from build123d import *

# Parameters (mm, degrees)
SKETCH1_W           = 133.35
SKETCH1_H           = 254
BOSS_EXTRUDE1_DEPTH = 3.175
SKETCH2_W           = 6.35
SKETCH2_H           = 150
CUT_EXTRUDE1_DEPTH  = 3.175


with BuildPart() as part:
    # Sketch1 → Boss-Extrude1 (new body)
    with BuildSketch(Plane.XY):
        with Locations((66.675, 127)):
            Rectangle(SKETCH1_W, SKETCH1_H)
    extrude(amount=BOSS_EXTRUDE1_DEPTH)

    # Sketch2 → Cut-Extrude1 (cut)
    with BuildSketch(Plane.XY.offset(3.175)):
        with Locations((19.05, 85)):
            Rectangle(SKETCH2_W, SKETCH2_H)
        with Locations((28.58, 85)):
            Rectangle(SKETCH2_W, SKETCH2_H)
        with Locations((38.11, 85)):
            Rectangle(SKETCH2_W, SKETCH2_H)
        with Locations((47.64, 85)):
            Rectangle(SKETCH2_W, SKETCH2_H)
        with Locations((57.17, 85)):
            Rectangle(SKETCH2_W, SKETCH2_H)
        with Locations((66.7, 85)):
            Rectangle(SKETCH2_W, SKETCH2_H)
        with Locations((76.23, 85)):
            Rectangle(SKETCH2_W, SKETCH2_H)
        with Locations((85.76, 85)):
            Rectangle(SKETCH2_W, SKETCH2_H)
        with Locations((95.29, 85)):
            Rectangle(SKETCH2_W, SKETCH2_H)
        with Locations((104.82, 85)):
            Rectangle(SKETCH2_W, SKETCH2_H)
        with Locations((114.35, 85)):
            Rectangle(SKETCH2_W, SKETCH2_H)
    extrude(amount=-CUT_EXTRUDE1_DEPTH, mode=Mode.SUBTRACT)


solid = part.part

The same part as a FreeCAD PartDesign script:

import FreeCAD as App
import Part
import Sketcher
Q = App.Units.Quantity


def add_polygon(sketch, points):
    """Adds a closed chain of lines whose ends are joined by coincident constraints."""
    first, n = sketch.GeometryCount, len(points)
    for a, b in zip(points, points[1:] + points[:1]):
        sketch.addGeometry(Part.LineSegment(App.Vector(*a, 0), App.Vector(*b, 0)), False)
    for i in range(n):
        sketch.addConstraint(Sketcher.Constraint("Coincident", first + i, 2, first + (i + 1) % n, 1))

doc = App.newDocument("Part")
body = doc.addObject("PartDesign::Body", "Body")

# Sketch on XY plane
sketch1 = body.newObject("Sketcher::SketchObject", "Sketch")
sketch1.AttachmentSupport = (doc.getObject("XY_Plane"), [""])
sketch1.MapMode = "FlatFace"
add_polygon(sketch1, [(0, 254), (0, 0), (133.35, 0), (133.35, 254)])  # lines 0-3
sketch1.addConstraint(Sketcher.Constraint("Vertical", 0))
sketch1.addConstraint(Sketcher.Constraint("Horizontal", 1))
sketch1.addConstraint(Sketcher.Constraint("Vertical", 2))
sketch1.addConstraint(Sketcher.Constraint("Horizontal", 3))
sketch1.addConstraint(Sketcher.Constraint("Coincident", 0, 2, -1, 1))
sketch1.addConstraint(Sketcher.Constraint("DistanceY", 0, 2, 0, 1, Q("10 in")))
sketch1.addConstraint(Sketcher.Constraint("DistanceX", 1, 1, 1, 2, Q("5.25 in")))
pad1 = body.newObject("PartDesign::Pad", "Pad")
pad1.Profile = sketch1
pad1.Length = Q("0.125 in")

# Sketch on XY plane
sketch2 = body.newObject("Sketcher::SketchObject", "Sketch001")
sketch2.AttachmentSupport = (doc.getObject("XY_Plane"), [""])
sketch2.MapMode = "FlatFace"
sketch2.AttachmentOffset = App.Placement(App.Vector(0, 0, 0.125 * 25.4), App.Rotation())
add_polygon(sketch2, [(15.875, 160), (15.875, 10), (22.225, 10), (22.225, 160)])  # lines 0-3
add_polygon(sketch2, [(25.405, 160), (25.405, 10), (31.755, 10), (31.755, 160)])  # lines 4-7
add_polygon(sketch2, [(34.935, 160), (34.935, 10), (41.285, 10), (41.285, 160)])  # lines 8-11
add_polygon(sketch2, [(44.465, 160), (44.465, 10), (50.815, 10), (50.815, 160)])  # lines 12-15
add_polygon(sketch2, [(53.995, 160), (53.995, 10), (60.345, 10), (60.345, 160)])  # lines 16-19
add_polygon(sketch2, [(63.525, 160), (63.525, 10), (69.875, 10), (69.875, 160)])  # lines 20-23
add_polygon(sketch2, [(73.055, 160), (73.055, 10), (79.405, 10), (79.405, 160)])  # lines 24-27
add_polygon(sketch2, [(82.585, 160), (82.585, 10), (88.935, 10), (88.935, 160)])  # lines 28-31
add_polygon(sketch2, [(92.115, 160), (92.115, 10), (98.465, 10), (98.465, 160)])  # lines 32-35
add_polygon(sketch2, [(101.645, 160), (101.645, 10), (107.995, 10), (107.995, 160)])  # lines 36-39
add_polygon(sketch2, [(111.175, 160), (111.175, 10), (117.525, 10), (117.525, 160)])  # lines 40-43
sketch2.addConstraint(Sketcher.Constraint("Vertical", 0))
sketch2.addConstraint(Sketcher.Constraint("Horizontal", 1))
sketch2.addConstraint(Sketcher.Constraint("Vertical", 2))
sketch2.addConstraint(Sketcher.Constraint("Horizontal", 3))
sketch2.addConstraint(Sketcher.Constraint("Vertical", 4))
sketch2.addConstraint(Sketcher.Constraint("Horizontal", 5))
sketch2.addConstraint(Sketcher.Constraint("Vertical", 6))
sketch2.addConstraint(Sketcher.Constraint("Horizontal", 7))
sketch2.addConstraint(Sketcher.Constraint("Vertical", 8))
sketch2.addConstraint(Sketcher.Constraint("Horizontal", 9))
sketch2.addConstraint(Sketcher.Constraint("Vertical", 10))
sketch2.addConstraint(Sketcher.Constraint("Horizontal", 11))
sketch2.addConstraint(Sketcher.Constraint("Vertical", 12))
sketch2.addConstraint(Sketcher.Constraint("Horizontal", 13))
sketch2.addConstraint(Sketcher.Constraint("Vertical", 14))
sketch2.addConstraint(Sketcher.Constraint("Horizontal", 15))
sketch2.addConstraint(Sketcher.Constraint("Vertical", 16))
sketch2.addConstraint(Sketcher.Constraint("Horizontal", 17))
sketch2.addConstraint(Sketcher.Constraint("Vertical", 18))
sketch2.addConstraint(Sketcher.Constraint("Horizontal", 19))
sketch2.addConstraint(Sketcher.Constraint("Vertical", 20))
sketch2.addConstraint(Sketcher.Constraint("Horizontal", 21))
sketch2.addConstraint(Sketcher.Constraint("Vertical", 22))
sketch2.addConstraint(Sketcher.Constraint("Horizontal", 23))
sketch2.addConstraint(Sketcher.Constraint("Vertical", 24))
sketch2.addConstraint(Sketcher.Constraint("Horizontal", 25))
sketch2.addConstraint(Sketcher.Constraint("Vertical", 26))
sketch2.addConstraint(Sketcher.Constraint("Horizontal", 27))
sketch2.addConstraint(Sketcher.Constraint("Vertical", 28))
sketch2.addConstraint(Sketcher.Constraint("Horizontal", 29))
sketch2.addConstraint(Sketcher.Constraint("Vertical", 30))
sketch2.addConstraint(Sketcher.Constraint("Horizontal", 31))
sketch2.addConstraint(Sketcher.Constraint("Vertical", 32))
sketch2.addConstraint(Sketcher.Constraint("Horizontal", 33))
sketch2.addConstraint(Sketcher.Constraint("Vertical", 34))
sketch2.addConstraint(Sketcher.Constraint("Horizontal", 35))
sketch2.addConstraint(Sketcher.Constraint("Vertical", 36))
sketch2.addConstraint(Sketcher.Constraint("Horizontal", 37))
sketch2.addConstraint(Sketcher.Constraint("Vertical", 38))
sketch2.addConstraint(Sketcher.Constraint("Horizontal", 39))
sketch2.addConstraint(Sketcher.Constraint("Vertical", 40))
sketch2.addConstraint(Sketcher.Constraint("Horizontal", 41))
sketch2.addConstraint(Sketcher.Constraint("Vertical", 42))
sketch2.addConstraint(Sketcher.Constraint("Horizontal", 43))
sketch2.addConstraint(Sketcher.Constraint("Horizontal", 1, 2, 4, 2))
sketch2.addConstraint(Sketcher.Constraint("Horizontal", 3, 2, 6, 2))
sketch2.addConstraint(Sketcher.Constraint("Horizontal", 5, 2, 8, 2))
sketch2.addConstraint(Sketcher.Constraint("Horizontal", 7, 2, 10, 2))
sketch2.addConstraint(Sketcher.Constraint("Horizontal", 9, 2, 12, 2))
sketch2.addConstraint(Sketcher.Constraint("Horizontal", 11, 2, 14, 2))
sketch2.addConstraint(Sketcher.Constraint("Horizontal", 13, 2, 16, 2))
sketch2.addConstraint(Sketcher.Constraint("Horizontal", 15, 2, 18, 2))
sketch2.addConstraint(Sketcher.Constraint("Horizontal", 17, 2, 20, 2))
sketch2.addConstraint(Sketcher.Constraint("Horizontal", 19, 2, 22, 2))
sketch2.addConstraint(Sketcher.Constraint("Horizontal", 21, 2, 24, 2))
sketch2.addConstraint(Sketcher.Constraint("Horizontal", 23, 2, 26, 2))
sketch2.addConstraint(Sketcher.Constraint("Horizontal", 25, 2, 28, 2))
sketch2.addConstraint(Sketcher.Constraint("Horizontal", 27, 2, 30, 2))
sketch2.addConstraint(Sketcher.Constraint("Horizontal", 29, 2, 32, 2))
sketch2.addConstraint(Sketcher.Constraint("Horizontal", 31, 2, 34, 2))
sketch2.addConstraint(Sketcher.Constraint("Horizontal", 33, 2, 36, 2))
sketch2.addConstraint(Sketcher.Constraint("Horizontal", 35, 2, 38, 2))
sketch2.addConstraint(Sketcher.Constraint("Horizontal", 37, 2, 40, 2))
sketch2.addConstraint(Sketcher.Constraint("Horizontal", 39, 2, 42, 2))
sketch2.addConstraint(Sketcher.Constraint("Equal", 3, 5))
sketch2.addConstraint(Sketcher.Constraint("Equal", 7, 9))
sketch2.addConstraint(Sketcher.Constraint("Equal", 11, 13))
sketch2.addConstraint(Sketcher.Constraint("Equal", 15, 17))
sketch2.addConstraint(Sketcher.Constraint("Equal", 19, 21))
sketch2.addConstraint(Sketcher.Constraint("Equal", 23, 25))
sketch2.addConstraint(Sketcher.Constraint("Equal", 27, 29))
sketch2.addConstraint(Sketcher.Constraint("Equal", 31, 33))
sketch2.addConstraint(Sketcher.Constraint("Equal", 35, 37))
sketch2.addConstraint(Sketcher.Constraint("Equal", 39, 41))
sketch2.addConstraint(Sketcher.Constraint("DistanceX", 1, 1, 1, 2, Q("0.25 in")))
sketch2.addConstraint(Sketcher.Constraint("DistanceX", -1, 1, 0, 2, Q("0.625 in")))
sketch2.addConstraint(Sketcher.Constraint("DistanceY", 0, 2, 0, 1, Q("150 mm")))
sketch2.addConstraint(Sketcher.Constraint("DistanceY", -1, 1, 0, 2, Q("10 mm")))
sketch2.addConstraint(Sketcher.Constraint("DistanceX", -1, 1, 4, 2, Q("25.405 mm")))
sketch2.addConstraint(Sketcher.Constraint("DistanceX", -1, 1, 8, 2, Q("34.935 mm")))
sketch2.addConstraint(Sketcher.Constraint("DistanceX", -1, 1, 12, 2, Q("44.465 mm")))
sketch2.addConstraint(Sketcher.Constraint("DistanceX", -1, 1, 16, 2, Q("53.995 mm")))
sketch2.addConstraint(Sketcher.Constraint("DistanceX", -1, 1, 20, 2, Q("63.525 mm")))
sketch2.addConstraint(Sketcher.Constraint("DistanceX", -1, 1, 24, 2, Q("73.055 mm")))
sketch2.addConstraint(Sketcher.Constraint("DistanceX", -1, 1, 28, 2, Q("82.585 mm")))
sketch2.addConstraint(Sketcher.Constraint("DistanceX", -1, 1, 32, 2, Q("92.115 mm")))
sketch2.addConstraint(Sketcher.Constraint("DistanceX", -1, 1, 36, 2, Q("101.645 mm")))
sketch2.addConstraint(Sketcher.Constraint("DistanceX", -1, 1, 40, 2, Q("111.175 mm")))
pocket1 = body.newObject("PartDesign::Pocket", "Pocket")
pocket1.Profile = sketch2
pocket1.Length = Q("0.125 in")

doc.recompute()
